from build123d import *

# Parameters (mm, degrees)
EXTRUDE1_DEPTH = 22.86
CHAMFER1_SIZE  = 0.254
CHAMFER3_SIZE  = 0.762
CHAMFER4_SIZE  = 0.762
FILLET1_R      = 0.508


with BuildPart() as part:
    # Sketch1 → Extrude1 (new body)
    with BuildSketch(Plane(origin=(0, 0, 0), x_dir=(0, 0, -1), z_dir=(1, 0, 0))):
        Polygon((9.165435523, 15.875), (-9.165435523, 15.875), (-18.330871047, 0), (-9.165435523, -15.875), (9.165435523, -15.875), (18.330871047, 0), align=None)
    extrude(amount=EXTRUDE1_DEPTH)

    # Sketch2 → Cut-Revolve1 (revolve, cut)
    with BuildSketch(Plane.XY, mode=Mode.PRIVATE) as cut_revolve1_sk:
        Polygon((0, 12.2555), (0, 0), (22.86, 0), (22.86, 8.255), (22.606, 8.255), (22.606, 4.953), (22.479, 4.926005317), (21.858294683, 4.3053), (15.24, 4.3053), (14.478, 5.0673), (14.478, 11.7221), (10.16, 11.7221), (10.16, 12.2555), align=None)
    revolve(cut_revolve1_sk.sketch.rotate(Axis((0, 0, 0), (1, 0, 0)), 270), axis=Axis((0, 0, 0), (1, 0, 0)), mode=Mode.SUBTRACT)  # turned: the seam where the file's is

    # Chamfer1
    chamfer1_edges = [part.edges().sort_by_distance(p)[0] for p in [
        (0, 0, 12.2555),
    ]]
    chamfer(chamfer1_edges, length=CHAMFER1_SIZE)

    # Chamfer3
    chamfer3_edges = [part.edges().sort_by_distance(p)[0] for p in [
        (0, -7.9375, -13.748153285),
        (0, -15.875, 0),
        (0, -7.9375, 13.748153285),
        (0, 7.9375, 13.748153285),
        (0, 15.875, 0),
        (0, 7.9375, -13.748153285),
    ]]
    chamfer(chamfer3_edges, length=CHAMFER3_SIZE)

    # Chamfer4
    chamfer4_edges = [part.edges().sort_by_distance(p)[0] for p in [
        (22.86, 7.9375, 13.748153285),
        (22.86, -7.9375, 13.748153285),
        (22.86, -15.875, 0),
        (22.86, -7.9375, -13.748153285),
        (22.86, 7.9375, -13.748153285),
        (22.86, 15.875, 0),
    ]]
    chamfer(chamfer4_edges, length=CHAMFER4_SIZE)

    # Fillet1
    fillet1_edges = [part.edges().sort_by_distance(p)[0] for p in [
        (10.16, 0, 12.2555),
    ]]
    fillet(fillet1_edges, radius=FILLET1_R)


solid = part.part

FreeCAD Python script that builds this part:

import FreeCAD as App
import Part
import Sketcher
Q = App.Units.Quantity


def edges_at(feature, points):
    """Names of the edges that pass closest to the given points."""
    edges = feature.Shape.Edges
    near = lambda p: min(range(len(edges)), key=lambda i: edges[i].distToShape(Part.Vertex(*p))[0])
    return sorted({f"Edge{near(p) + 1}" for p in points})

doc = App.newDocument("Part")
body = doc.addObject("PartDesign::Body", "Body")

# Sketch on YZ plane
sketch1 = doc.addObject("Sketcher::SketchObject", "Sketch")
body.addObject(sketch1)
sketch1.AttachmentSupport = (doc.YZ_Plane, [""])
sketch1.MapMode = "FlatFace"
sketch1.addGeometry(Part.LineSegment(App.Vector(16, -9, 0), App.Vector(16, 9, 0)), False)
sketch1.addGeometry(Part.LineSegment(App.Vector(16, 9, 0), App.Vector(0, 18, 0)), False)
sketch1.addGeometry(Part.LineSegment(App.Vector(0, 18, 0), App.Vector(-16, 9, 0)), False)
sketch1.addGeometry(Part.LineSegment(App.Vector(-16, 9, 0), App.Vector(-16, -9, 0)), False)
sketch1.addGeometry(Part.LineSegment(App.Vector(-16, -9, 0), App.Vector(0, -18, 0)), False)
sketch1.addGeometry(Part.LineSegment(App.Vector(0, -18, 0), App.Vector(16, -9, 0)), False)
sketch1.addConstraint(Sketcher.Constraint("Coincident", 0, 2, 1, 1))
sketch1.addConstraint(Sketcher.Constraint("Coincident", 1, 2, 2, 1))
sketch1.addConstraint(Sketcher.Constraint("Coincident", 2, 2, 3, 1))
sketch1.addConstraint(Sketcher.Constraint("Coincident", 3, 2, 4, 1))
sketch1.addConstraint(Sketcher.Constraint("Coincident", 4, 2, 5, 1))
sketch1.addConstraint(Sketcher.Constraint("Coincident", 5, 2, 0, 1))
sketch1.addConstraint(Sketcher.Constraint("Vertical", 0))
sketch1.addConstraint(Sketcher.Constraint("Vertical", 3))
sketch1.addConstraint(Sketcher.Constraint("Symmetric", 0, 2, 3, 2, -1, 1))
sketch1.addConstraint(Sketcher.Constraint("Symmetric", 1, 2, 4, 2, -1, 1))
sketch1.addConstraint(Sketcher.Constraint("PointOnObject", 1, 2, -2))
sketch1.addConstraint(Sketcher.Constraint("Parallel", 2, 5))
sketch1.addConstraint(Sketcher.Constraint("Horizontal", 0, 2, 2, 2))
sketch1.addConstraint(Sketcher.Constraint("Angle", 1, Q("150 deg")))
sketch1.addConstraint(Sketcher.Constraint("DistanceX", 2, 2, 0, 2, Q("1.25 in")))
sketch1.addConstraint(Sketcher.Constraint("DistanceY", 0, 1, 0, 2, Q("18.330871 mm")))
pad1 = doc.addObject("PartDesign::Pad", "Pad")
body.addObject(pad1)
pad1.Profile = sketch1
pad1.Length = Q("0.9 in")

# Sketch on XY plane
sketch2 = doc.addObject("Sketcher::SketchObject", "Sketch001")
body.addObject(sketch2)
sketch2.AttachmentSupport = (doc.XY_Plane, [""])
sketch2.MapMode = "FlatFace"
sketch2.addGeometry(Part.LineSegment(App.Vector(0, 12.26, 0), App.Vector(0, 0, 0)), False)
sketch2.addGeometry(Part.LineSegment(App.Vector(0, 0, 0), App.Vector(22.86, 0, 0)), False)
sketch2.addGeometry(Part.LineSegment(App.Vector(22.86, 0, 0), App.Vector(22.86, 8.26, 0)), False)
sketch2.addGeometry(Part.LineSegment(App.Vector(22.86, 8.26, 0), App.Vector(22.61, 8.26, 0)), False)
sketch2.addGeometry(Part.LineSegment(App.Vector(22.61, 8.26, 0), App.Vector(22.61, 4.95, 0)), False)
sketch2.addGeometry(Part.LineSegment(App.Vector(22.61, 4.95, 0), App.Vector(22.48, 4.93, 0)), False)
sketch2.addGeometry(Part.LineSegment(App.Vector(22.48, 4.93, 0), App.Vector(21.86, 4.31, 0)), False)
sketch2.addGeometry(Part.LineSegment(App.Vector(21.86, 4.31, 0), App.Vector(15.24, 4.31, 0)), False)
sketch2.addGeometry(Part.LineSegment(App.Vector(15.24, 4.31, 0), App.Vector(14.48, 5.07, 0)), False)
sketch2.addGeometry(Part.LineSegment(App.Vector(14.48, 5.07, 0), App.Vector(14.48, 11.72, 0)), False)
sketch2.addGeometry(Part.LineSegment(App.Vector(14.48, 11.72, 0), App.Vector(10.16, 11.72, 0)), False)
sketch2.addGeometry(Part.LineSegment(App.Vector(10.16, 11.72, 0), App.Vector(10.16, 12.26, 0)), False)
sketch2.addGeometry(Part.LineSegment(App.Vector(10.16, 12.26, 0), App.Vector(0, 12.26, 0)), False)
sketch2.addConstraint(Sketcher.Constraint("Coincident", 0, 2, 1, 1))
sketch2.addConstraint(Sketcher.Constraint("Coincident", 1, 2, 2, 1))
sketch2.addConstraint(Sketcher.Constraint("Coincident", 2, 2, 3, 1))
sketch2.addConstraint(Sketcher.Constraint("Coincident", 3, 2, 4, 1))
sketch2.addConstraint(Sketcher.Constraint("Coincident", 4, 2, 5, 1))
sketch2.addConstraint(Sketcher.Constraint("Coincident", 5, 2, 6, 1))
sketch2.addConstraint(Sketcher.Constraint("Coincident", 6, 2, 7, 1))
sketch2.addConstraint(Sketcher.Constraint("Coincident", 7, 2, 8, 1))
sketch2.addConstraint(Sketcher.Constraint("Coincident", 8, 2, 9, 1))
sketch2.addConstraint(Sketcher.Constraint("Coincident", 9, 2, 10, 1))
sketch2.addConstraint(Sketcher.Constraint("Coincident", 10, 2, 11, 1))
sketch2.addConstraint(Sketcher.Constraint("Coincident", 11, 2, 12, 1))
sketch2.addConstraint(Sketcher.Constraint("Coincident", 12, 2, 0, 1))
sketch2.addConstraint(Sketcher.Constraint("Vertical", 0))
sketch2.addConstraint(Sketcher.Constraint("Horizontal", 1))
sketch2.addConstraint(Sketcher.Constraint("Vertical", 2))
sketch2.addConstraint(Sketcher.Constraint("Horizontal", 3))
sketch2.addConstraint(Sketcher.Constraint("Vertical", 4))
sketch2.addConstraint(Sketcher.Constraint("Horizontal", 7))
sketch2.addConstraint(Sketcher.Constraint("Vertical", 9))
sketch2.addConstraint(Sketcher.Constraint("Horizontal", 10))
sketch2.addConstraint(Sketcher.Constraint("Vertical", 11))
sketch2.addConstraint(Sketcher.Constraint("Horizontal", 12))
sketch2.addConstraint(Sketcher.Constraint("Coincident", 0, 2, -1, 1))
sketch2.addConstraint(Sketcher.Constraint("Perpendicular", 6, 8))
sketch2.addConstraint(Sketcher.Constraint("DistanceX", 1, 1, 1, 2, Q("0.9 in")))
sketch2.addConstraint(Sketcher.Constraint("DistanceX", 12, 2, 12, 1, Q("0.4 in")))
sketch2.addConstraint(Sketcher.Constraint("Angle", 5, Q("-168 deg")))
sketch2.addConstraint(Sketcher.Constraint("Angle", 6, Q("-135 deg")))
sketch2.addConstraint(Sketcher.Constraint("DistanceX", 3, 2, 3, 1, Q("0.01 in")))
sketch2.addConstraint(Sketcher.Constraint("DistanceX", 10, 2, 10, 1, Q("0.17 in")))
sketch2.addConstraint(Sketcher.Constraint("DistanceY", 4, 2, 4, 1, Q("0.13 in")))
sketch2.addConstraint(Sketcher.Constraint("DistanceX", -1, 1, 7, 2, Q("0.6 in")))
sketch2.addConstraint(Sketcher.Constraint("DistanceY", 2, 1, 2, 2, Q("0.325 in")))
sketch2.addConstraint(Sketcher.Constraint("DistanceY", 9, 1, 9, 2, Q("0.262 in")))
sketch2.addConstraint(Sketcher.Constraint("DistanceY", 11, 1, 11, 2, Q("0.021 in")))
sketch2.addConstraint(Sketcher.Constraint("DistanceY", 0, 2, 0, 1, Q("0.4825 in")))
sketch2.addConstraint(Sketcher.Constraint("DistanceX", -1, 1, 5, 2, Q("0.885 in")))
groove = doc.addObject("PartDesign::Groove", "Groove")
body.addObject(groove)
groove.Profile = sketch2
groove.ReferenceAxis = (sketch2, ["H_Axis"])
groove.Angle = 360
doc.recompute()

chamfer = doc.addObject("PartDesign::Chamfer", "Chamfer")
body.addObject(chamfer)
chamfer.Base = (groove, edges_at(groove, [(0, 0, 12.255)]))
chamfer.Size = Q("0.01 in")
doc.recompute()

chamfer2 = doc.addObject("PartDesign::Chamfer", "Chamfer001")
body.addObject(chamfer2)
chamfer2.Base = (chamfer, edges_at(chamfer, [
    (0, -7.938, -13.748),
    (0, -15.875, 0),
    (0, -7.938, 13.748),
    (0, 7.938, 13.748),
    (0, 15.875, 0),
    (0, 7.938, -13.748),
]))
chamfer2.Size = Q("0.03 in")
doc.recompute()

chamfer3 = doc.addObject("PartDesign::Chamfer", "Chamfer002")
body.addObject(chamfer3)
chamfer3.Base = (chamfer2, edges_at(chamfer2, [
    (22.86, 7.938, 13.748),
    (22.86, -7.938, 13.748),
    (22.86, -15.875, 0),
    (22.86, -7.938, -13.748),
    (22.86, 7.938, -13.748),
    (22.86, 15.875, 0),
]))
chamfer3.Size = Q("0.03 in")
doc.recompute()

fillet = doc.addObject("PartDesign::Fillet", "Fillet")
body.addObject(fillet)
fillet.Base = (chamfer3, edges_at(chamfer3, [(10.16, 0, 12.255)]))
fillet.Radius = Q("0.02 in")

doc.recompute()
